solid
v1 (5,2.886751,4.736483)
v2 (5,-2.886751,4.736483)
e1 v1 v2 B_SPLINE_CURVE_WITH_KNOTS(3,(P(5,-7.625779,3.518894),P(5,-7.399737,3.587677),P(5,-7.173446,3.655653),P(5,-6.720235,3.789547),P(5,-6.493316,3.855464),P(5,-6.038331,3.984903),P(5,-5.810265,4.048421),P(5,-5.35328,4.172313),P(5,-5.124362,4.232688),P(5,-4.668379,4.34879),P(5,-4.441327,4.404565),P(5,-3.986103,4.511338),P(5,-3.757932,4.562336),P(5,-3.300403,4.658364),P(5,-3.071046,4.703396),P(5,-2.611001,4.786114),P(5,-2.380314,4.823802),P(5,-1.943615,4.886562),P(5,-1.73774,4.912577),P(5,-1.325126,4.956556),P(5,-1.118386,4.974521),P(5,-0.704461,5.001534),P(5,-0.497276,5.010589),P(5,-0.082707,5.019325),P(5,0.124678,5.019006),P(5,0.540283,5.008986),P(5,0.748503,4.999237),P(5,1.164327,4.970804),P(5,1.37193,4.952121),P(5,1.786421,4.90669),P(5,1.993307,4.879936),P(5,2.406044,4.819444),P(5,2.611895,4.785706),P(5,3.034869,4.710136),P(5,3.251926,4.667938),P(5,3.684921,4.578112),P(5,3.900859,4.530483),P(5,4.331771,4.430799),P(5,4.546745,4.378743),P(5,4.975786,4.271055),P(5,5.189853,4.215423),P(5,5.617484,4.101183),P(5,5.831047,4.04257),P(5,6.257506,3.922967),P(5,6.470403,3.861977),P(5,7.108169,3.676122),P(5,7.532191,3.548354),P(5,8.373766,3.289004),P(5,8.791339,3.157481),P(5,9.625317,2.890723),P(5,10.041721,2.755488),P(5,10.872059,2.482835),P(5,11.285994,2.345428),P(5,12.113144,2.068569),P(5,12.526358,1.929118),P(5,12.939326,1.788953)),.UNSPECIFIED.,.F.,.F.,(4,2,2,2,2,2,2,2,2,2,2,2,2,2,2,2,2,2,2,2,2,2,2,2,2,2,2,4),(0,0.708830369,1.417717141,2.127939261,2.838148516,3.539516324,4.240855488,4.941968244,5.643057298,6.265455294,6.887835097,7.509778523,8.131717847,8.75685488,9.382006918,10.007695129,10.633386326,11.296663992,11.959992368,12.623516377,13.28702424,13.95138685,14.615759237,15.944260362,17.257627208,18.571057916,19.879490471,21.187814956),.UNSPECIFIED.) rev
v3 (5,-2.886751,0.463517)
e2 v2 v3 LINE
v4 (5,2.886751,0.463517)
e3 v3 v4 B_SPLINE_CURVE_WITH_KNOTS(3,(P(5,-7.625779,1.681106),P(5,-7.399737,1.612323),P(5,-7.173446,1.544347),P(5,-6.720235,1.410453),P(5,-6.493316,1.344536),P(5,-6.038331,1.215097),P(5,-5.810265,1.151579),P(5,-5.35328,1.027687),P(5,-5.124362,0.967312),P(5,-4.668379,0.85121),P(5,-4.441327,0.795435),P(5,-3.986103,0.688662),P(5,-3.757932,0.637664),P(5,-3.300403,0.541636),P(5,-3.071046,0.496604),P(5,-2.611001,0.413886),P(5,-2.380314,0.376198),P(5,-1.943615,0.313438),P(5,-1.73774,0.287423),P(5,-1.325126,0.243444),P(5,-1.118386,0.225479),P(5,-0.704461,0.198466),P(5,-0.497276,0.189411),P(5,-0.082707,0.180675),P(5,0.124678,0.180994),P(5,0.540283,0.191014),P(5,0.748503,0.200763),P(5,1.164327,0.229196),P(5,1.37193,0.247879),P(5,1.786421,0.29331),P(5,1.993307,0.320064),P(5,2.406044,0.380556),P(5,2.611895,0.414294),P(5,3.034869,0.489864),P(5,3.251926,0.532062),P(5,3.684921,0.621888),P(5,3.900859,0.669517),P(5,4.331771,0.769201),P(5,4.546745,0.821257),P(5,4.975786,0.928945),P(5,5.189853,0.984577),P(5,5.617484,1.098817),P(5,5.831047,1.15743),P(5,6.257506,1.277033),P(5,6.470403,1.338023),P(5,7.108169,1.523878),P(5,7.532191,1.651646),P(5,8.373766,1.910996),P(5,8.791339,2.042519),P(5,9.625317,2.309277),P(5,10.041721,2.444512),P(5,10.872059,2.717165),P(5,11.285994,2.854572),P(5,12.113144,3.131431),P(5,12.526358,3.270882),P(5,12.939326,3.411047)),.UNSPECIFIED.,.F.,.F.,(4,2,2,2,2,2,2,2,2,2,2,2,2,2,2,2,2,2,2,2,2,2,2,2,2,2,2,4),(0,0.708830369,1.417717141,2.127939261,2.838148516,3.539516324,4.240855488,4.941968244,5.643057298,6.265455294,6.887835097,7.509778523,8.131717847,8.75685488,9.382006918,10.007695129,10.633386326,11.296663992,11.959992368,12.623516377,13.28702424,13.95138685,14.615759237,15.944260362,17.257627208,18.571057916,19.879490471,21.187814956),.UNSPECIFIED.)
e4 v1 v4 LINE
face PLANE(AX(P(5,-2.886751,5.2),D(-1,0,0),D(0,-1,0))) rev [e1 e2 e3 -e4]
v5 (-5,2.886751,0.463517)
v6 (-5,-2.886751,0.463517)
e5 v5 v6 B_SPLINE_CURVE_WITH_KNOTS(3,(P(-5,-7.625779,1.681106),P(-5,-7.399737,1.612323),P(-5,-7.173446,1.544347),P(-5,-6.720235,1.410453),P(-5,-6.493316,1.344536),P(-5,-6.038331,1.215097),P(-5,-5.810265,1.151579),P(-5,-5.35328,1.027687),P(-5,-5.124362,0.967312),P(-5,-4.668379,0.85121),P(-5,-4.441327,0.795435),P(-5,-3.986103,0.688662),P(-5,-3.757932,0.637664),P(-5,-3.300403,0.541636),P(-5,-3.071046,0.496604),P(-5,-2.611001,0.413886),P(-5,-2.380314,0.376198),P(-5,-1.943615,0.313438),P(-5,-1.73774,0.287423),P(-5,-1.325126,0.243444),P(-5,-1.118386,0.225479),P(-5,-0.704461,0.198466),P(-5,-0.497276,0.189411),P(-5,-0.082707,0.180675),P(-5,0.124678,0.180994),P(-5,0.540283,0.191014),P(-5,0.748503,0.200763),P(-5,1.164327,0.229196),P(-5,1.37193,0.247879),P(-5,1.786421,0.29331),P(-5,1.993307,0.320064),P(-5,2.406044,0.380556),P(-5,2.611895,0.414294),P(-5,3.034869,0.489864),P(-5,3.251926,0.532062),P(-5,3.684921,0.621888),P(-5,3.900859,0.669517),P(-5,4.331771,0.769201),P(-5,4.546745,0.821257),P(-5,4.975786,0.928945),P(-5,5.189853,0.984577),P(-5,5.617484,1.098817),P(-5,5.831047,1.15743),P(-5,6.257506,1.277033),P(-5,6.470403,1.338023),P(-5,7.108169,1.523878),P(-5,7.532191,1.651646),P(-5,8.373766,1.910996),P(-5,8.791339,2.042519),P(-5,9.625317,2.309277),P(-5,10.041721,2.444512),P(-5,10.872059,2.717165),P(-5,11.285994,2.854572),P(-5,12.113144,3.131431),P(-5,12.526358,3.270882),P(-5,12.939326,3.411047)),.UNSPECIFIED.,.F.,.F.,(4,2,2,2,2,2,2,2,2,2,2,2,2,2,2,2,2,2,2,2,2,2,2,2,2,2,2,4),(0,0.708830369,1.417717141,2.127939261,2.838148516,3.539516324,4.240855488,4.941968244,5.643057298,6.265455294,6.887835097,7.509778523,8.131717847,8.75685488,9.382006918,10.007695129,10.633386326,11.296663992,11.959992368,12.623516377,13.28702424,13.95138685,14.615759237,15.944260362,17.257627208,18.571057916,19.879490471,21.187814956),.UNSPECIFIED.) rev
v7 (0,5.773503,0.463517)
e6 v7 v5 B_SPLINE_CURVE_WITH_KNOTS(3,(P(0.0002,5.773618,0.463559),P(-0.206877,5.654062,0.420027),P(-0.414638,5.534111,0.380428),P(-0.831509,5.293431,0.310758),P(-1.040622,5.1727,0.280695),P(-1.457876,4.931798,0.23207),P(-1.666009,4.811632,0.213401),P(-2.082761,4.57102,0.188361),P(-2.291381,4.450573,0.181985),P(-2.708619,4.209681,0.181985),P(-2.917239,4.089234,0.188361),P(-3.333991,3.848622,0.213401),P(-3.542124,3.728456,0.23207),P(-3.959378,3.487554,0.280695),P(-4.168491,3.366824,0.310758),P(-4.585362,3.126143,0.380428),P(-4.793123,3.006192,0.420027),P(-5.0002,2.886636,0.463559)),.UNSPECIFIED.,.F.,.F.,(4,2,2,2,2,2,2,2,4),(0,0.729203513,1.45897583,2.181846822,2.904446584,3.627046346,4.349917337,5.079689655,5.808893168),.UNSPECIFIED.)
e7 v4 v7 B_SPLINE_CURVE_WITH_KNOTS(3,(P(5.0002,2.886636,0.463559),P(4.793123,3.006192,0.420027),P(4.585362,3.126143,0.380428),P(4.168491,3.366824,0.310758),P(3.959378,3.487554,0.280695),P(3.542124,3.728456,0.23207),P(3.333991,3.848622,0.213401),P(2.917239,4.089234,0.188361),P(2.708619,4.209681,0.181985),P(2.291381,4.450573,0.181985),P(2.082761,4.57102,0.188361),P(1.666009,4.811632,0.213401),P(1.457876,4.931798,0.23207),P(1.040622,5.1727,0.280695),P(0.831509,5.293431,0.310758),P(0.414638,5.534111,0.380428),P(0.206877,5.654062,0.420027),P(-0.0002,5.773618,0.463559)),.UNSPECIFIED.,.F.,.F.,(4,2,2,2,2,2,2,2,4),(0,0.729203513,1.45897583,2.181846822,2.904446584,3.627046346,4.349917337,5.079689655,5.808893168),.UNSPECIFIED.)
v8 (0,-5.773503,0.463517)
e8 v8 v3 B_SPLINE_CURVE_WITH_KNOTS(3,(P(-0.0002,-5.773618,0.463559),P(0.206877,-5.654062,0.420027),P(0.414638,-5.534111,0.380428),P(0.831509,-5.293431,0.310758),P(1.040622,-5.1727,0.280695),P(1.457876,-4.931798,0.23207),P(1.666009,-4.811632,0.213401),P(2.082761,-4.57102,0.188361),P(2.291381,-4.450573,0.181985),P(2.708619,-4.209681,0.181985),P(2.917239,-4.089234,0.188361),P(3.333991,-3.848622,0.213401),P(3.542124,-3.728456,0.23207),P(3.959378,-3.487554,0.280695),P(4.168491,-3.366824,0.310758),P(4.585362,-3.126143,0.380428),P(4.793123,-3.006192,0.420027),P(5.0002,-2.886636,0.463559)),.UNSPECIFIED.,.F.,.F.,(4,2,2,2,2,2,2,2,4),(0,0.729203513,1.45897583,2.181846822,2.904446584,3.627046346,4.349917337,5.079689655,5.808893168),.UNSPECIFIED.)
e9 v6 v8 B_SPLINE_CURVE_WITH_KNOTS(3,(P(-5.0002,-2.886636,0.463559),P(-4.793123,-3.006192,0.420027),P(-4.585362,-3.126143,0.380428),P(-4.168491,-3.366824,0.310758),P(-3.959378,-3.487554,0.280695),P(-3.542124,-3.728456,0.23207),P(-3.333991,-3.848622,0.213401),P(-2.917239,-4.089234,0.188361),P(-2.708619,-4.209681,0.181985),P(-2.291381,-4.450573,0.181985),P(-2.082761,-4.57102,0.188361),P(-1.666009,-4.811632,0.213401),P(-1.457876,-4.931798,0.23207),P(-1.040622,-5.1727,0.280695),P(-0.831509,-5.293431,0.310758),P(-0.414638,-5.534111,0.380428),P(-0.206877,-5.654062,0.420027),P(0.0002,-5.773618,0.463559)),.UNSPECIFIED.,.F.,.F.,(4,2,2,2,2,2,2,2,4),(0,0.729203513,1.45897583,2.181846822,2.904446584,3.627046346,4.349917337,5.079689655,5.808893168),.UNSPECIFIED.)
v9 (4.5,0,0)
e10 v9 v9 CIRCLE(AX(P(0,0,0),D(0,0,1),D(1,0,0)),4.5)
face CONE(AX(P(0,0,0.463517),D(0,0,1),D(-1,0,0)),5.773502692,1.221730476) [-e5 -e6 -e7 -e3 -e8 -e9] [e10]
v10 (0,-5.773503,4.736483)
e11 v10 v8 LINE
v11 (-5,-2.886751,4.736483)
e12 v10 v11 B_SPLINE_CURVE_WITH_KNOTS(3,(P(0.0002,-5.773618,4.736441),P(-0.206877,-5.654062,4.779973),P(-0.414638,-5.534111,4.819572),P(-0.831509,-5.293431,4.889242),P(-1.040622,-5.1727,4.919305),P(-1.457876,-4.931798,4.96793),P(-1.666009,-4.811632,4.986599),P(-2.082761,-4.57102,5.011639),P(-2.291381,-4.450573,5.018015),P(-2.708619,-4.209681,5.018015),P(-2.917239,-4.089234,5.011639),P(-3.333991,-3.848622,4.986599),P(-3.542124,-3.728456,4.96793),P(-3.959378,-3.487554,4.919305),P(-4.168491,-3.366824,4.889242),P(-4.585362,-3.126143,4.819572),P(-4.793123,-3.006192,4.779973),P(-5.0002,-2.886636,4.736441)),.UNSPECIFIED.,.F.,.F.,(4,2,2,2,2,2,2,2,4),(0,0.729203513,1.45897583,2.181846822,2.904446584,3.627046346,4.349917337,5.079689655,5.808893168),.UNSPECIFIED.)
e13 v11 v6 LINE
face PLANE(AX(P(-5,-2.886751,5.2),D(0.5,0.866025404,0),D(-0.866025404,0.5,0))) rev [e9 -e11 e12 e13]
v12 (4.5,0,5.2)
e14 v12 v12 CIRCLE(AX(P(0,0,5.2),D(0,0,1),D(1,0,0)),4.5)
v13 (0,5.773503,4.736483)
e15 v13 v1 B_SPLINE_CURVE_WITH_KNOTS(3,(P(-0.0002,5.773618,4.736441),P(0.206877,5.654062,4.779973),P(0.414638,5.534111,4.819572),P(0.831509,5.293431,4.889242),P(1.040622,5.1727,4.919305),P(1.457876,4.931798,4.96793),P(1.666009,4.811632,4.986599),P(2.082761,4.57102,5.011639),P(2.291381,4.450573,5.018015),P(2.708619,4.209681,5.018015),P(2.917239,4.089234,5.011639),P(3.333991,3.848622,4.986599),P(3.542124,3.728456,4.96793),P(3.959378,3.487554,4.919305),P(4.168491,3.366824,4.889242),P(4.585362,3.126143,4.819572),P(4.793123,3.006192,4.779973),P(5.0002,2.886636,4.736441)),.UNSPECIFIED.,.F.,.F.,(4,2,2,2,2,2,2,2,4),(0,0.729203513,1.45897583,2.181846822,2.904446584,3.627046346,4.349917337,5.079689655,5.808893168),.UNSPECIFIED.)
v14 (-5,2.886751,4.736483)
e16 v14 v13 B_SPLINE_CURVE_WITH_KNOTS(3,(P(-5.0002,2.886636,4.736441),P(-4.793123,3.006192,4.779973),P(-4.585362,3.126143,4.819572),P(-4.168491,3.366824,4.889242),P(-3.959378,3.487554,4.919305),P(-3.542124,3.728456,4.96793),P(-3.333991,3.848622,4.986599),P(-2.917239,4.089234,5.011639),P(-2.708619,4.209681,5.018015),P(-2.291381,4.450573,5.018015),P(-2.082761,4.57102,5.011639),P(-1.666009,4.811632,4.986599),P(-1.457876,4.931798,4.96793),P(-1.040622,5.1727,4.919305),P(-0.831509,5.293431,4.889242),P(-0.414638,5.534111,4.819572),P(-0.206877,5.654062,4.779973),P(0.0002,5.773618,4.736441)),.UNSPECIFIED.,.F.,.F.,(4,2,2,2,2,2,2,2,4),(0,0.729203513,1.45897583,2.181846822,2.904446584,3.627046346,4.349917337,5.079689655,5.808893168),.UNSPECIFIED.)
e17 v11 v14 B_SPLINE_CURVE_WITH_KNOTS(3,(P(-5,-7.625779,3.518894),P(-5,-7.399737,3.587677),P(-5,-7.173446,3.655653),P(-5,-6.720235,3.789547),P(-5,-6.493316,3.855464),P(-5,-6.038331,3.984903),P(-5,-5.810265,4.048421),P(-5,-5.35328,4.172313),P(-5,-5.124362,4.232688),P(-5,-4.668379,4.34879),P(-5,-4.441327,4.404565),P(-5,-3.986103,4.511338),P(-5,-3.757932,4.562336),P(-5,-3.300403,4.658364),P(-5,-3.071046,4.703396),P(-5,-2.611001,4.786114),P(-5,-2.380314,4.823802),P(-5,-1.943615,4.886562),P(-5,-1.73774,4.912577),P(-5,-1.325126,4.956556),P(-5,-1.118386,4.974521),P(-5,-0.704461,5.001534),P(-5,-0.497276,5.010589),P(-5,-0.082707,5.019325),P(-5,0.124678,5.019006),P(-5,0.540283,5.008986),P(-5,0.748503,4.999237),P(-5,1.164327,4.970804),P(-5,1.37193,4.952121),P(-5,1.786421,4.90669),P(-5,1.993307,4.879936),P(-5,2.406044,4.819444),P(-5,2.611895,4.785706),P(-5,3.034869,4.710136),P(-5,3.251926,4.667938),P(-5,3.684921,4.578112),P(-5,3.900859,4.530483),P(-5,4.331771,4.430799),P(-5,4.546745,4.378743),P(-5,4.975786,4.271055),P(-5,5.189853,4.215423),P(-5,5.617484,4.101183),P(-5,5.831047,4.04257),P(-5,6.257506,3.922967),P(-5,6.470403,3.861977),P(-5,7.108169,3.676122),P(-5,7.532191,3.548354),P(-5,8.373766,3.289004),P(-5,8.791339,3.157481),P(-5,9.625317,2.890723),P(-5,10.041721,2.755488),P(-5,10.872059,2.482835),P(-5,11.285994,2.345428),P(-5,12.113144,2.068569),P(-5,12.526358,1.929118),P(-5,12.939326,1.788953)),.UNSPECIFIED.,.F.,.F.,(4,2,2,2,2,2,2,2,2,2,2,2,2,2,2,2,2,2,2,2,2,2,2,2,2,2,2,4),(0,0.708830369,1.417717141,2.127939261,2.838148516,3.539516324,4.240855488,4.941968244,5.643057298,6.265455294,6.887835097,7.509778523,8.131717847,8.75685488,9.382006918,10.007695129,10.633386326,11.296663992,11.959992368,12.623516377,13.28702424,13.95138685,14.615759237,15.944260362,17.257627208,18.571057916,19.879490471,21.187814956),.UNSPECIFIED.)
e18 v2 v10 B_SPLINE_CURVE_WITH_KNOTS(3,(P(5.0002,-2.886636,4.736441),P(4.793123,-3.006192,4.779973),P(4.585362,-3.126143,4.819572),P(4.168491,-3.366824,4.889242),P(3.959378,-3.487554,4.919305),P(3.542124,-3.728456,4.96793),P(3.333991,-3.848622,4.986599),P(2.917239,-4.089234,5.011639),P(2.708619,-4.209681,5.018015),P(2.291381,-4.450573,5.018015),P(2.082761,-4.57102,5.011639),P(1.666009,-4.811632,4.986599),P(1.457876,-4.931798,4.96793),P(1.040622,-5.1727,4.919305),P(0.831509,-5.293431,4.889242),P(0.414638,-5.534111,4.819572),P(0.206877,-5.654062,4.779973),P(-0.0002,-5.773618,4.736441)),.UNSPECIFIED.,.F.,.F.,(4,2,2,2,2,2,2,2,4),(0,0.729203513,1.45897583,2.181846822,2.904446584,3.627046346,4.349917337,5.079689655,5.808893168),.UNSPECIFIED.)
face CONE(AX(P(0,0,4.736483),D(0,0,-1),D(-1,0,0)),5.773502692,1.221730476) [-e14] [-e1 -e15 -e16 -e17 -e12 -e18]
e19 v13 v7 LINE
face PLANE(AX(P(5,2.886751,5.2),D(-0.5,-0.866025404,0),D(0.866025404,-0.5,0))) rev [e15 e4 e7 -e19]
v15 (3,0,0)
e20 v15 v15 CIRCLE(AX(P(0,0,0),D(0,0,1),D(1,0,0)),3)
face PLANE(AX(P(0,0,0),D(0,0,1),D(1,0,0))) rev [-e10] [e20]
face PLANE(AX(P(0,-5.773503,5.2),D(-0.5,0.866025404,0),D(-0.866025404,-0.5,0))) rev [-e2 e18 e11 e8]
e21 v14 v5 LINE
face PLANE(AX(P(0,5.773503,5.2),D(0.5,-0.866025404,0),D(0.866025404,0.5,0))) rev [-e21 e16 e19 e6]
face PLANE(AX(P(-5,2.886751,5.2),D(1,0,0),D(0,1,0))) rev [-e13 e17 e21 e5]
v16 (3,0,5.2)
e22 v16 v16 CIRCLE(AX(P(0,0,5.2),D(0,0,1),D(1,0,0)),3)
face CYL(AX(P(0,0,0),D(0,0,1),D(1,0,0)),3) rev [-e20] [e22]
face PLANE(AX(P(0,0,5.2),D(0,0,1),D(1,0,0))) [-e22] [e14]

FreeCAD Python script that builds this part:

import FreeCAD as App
import Part
import Sketcher

V = App.Vector
Q = App.Units.Quantity


def add_polygon(sketch, points):
    """Adds a closed chain of lines whose ends are joined by coincident constraints."""
    first, n = sketch.GeometryCount, len(points)
    for a, b in zip(points, points[1:] + points[:1]):
        sketch.addGeometry(Part.LineSegment(App.Vector(*a, 0), App.Vector(*b, 0)), False)
    for i in range(n):
        sketch.addConstraint(Sketcher.Constraint("Coincident", first + i, 2, first + (i + 1) % n, 1))

doc = App.newDocument("Part")
body = doc.addObject("PartDesign::Body", "Body")

# Sketch on XY plane
sketch1 = body.newObject("Sketcher::SketchObject", "Sketch")
sketch1.AttachmentSupport = (doc.getObject("XY_Plane"), [""])
sketch1.MapMode = "FlatFace"
add_polygon(sketch1, [(0, 5.773503), (-5, 2.886751), (-5, -2.886751), (0, -5.773503), (5, -2.886751), (5, 2.886751)])  # lines 0-5
sketch1.addConstraint([
    Sketcher.Constraint("Vertical", 1),
    Sketcher.Constraint("Vertical", 4),
    Sketcher.Constraint("Symmetric", 0, 2, 3, 2, -1, 1),
    Sketcher.Constraint("Symmetric", 2, 2, 5, 2, -1, 1),
    Sketcher.Constraint("PointOnObject", 2, 2, -2),
    Sketcher.Constraint("Parallel", 2, 5),
    Sketcher.Constraint("Horizontal", 1, 2, 3, 2),
    Sketcher.Constraint("Angle", 0, Q("-150 deg")),
    Sketcher.Constraint("DistanceX", 0, 2, -1, 1, 5.0),
    Sketcher.Constraint("DistanceY", 1, 2, 1, 1, 5.773503),
])
pad1 = body.newObject("PartDesign::Pad", "Pad")
pad1.Profile = sketch1
pad1.Length = 5.2

# Sketch on YZ plane
sketch2 = body.newObject("Sketcher::SketchObject", "Sketch001")
sketch2.AttachmentSupport = (doc.getObject("YZ_Plane"), [""])
sketch2.MapMode = "FlatFace"
add_polygon(sketch2, [(-5.773503, 4.736483), (-4.5, 5.2), (-5.773503, 5.2)])  # lines 0-2
sketch2.addConstraint([
    Sketcher.Constraint("Horizontal", 1),
    Sketcher.Constraint("Vertical", 2),
    Sketcher.Constraint("Angle", 0, Q("20 deg")),
    Sketcher.Constraint("DistanceX", 0, 2, -1, 1, 4.5),
    Sketcher.Constraint("DistanceY", -1, 1, 0, 2, 5.2),
    Sketcher.Constraint("DistanceX", 1, 2, 1, 1, 1.273503),
])
groove = body.newObject("PartDesign::Groove", "Groove")
groove.Profile = sketch2
groove.ReferenceAxis = (sketch2, ["V_Axis"])
groove.Angle = 360
doc.recompute()

datumplane = body.newObject("PartDesign::Plane", "DatumPlane")
datumplane.AttachmentSupport = (doc.getObject("XY_Plane"), [""])
datumplane.MapMode = "FlatFace"
datumplane.AttachmentOffset = App.Placement(V(0, 0, 2.6), App.Rotation())
mirrored = body.newObject("PartDesign::Mirrored", "Mirrored")
mirrored.Originals = [groove]
mirrored.MirrorPlane = (datumplane, [""])
body.Tip = mirrored

# Sketch on XY plane
sketch3 = body.newObject("Sketcher::SketchObject", "Sketch002")
sketch3.AttachmentSupport = (doc.getObject("XY_Plane"), [""])
sketch3.MapMode = "FlatFace"
sketch3.AttachmentOffset = App.Placement(V(0, 0, 5.2), App.Rotation())
sketch3.addGeometry(Part.Circle(V(0, 0, 0), V(0, 0, 1), 3), False)
sketch3.addConstraint([
    Sketcher.Constraint("Coincident", 0, 3, -1, 1),
    Sketcher.Constraint("Diameter", 0, 6.0),
])
pocket1 = body.newObject("PartDesign::Pocket", "Pocket")
pocket1.Profile = sketch3
pocket1.Type = "ThroughAll"

doc.recompute()
